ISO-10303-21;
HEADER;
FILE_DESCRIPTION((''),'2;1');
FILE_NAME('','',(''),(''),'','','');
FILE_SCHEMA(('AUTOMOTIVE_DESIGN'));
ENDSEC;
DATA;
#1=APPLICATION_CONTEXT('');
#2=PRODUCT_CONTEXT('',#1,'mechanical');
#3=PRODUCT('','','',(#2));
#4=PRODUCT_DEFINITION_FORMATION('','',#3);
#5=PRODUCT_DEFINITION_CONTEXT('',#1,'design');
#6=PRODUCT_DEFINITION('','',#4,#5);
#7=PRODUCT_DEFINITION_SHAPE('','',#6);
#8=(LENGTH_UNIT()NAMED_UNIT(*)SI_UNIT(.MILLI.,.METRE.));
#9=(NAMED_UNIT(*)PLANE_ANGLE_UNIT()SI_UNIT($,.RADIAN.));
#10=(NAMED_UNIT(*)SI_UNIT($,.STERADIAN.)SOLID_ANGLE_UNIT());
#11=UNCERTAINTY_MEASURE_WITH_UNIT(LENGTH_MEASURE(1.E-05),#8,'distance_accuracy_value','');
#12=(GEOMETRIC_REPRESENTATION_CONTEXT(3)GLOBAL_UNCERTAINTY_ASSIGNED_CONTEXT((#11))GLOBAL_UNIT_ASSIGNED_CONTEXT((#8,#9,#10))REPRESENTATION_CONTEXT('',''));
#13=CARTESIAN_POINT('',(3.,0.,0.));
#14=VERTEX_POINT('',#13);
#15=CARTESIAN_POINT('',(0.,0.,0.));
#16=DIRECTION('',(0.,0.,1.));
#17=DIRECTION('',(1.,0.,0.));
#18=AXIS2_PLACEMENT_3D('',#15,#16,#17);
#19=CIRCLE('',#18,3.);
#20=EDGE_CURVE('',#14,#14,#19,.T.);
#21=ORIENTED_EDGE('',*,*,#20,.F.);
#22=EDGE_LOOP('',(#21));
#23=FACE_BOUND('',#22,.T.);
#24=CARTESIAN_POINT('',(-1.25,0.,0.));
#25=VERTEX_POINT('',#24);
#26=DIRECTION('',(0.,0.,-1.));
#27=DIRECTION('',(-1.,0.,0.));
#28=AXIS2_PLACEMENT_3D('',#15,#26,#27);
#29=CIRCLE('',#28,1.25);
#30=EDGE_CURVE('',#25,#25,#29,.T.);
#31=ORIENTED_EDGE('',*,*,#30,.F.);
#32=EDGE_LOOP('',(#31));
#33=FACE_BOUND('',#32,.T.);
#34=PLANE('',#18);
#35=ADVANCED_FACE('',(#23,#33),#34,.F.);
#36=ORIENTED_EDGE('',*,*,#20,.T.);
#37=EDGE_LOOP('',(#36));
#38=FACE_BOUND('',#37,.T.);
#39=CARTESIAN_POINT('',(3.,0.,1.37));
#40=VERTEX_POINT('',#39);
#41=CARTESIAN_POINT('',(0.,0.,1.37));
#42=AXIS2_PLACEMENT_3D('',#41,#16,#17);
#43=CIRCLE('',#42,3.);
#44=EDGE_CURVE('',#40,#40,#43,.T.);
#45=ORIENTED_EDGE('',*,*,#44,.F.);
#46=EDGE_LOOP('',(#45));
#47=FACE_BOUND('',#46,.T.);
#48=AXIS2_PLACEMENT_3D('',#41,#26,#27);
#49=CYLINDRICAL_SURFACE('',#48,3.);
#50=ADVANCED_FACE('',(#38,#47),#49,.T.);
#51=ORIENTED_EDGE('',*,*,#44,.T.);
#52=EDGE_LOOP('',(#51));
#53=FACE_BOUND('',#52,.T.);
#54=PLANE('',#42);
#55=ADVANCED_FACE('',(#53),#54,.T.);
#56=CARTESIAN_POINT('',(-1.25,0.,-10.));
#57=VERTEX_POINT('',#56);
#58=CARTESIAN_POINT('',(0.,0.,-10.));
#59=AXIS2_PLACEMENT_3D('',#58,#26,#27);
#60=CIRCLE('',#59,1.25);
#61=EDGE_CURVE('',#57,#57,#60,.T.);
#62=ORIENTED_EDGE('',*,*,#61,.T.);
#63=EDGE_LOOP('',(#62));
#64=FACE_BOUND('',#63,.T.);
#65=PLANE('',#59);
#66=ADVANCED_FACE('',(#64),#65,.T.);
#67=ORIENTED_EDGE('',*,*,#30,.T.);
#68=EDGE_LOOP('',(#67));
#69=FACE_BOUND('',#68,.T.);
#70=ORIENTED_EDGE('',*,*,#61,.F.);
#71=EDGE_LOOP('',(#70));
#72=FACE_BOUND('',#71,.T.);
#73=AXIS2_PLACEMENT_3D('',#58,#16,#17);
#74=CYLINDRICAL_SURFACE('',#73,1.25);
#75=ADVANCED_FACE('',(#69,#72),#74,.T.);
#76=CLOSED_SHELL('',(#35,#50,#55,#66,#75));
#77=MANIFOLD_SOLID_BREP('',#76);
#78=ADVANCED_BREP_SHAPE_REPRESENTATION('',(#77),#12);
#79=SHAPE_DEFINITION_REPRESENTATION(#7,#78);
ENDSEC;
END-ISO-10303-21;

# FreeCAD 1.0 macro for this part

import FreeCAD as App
import Part
import Sketcher

V = App.Vector
Q = App.Units.Quantity

doc = App.newDocument("Part")
body = doc.addObject("PartDesign::Body", "Body")

sketch1 = doc.addObject("Sketcher::SketchObject", "Sketch")
body.addObject(sketch1)
sketch1.AttachmentSupport = (doc.XY_Plane, [""])
sketch1.MapMode = "FlatFace"
sketch1.addGeometry(Part.Circle(V(0, 0, 0), V(0, 0, 1), 3), False)
sketch1.addConstraint(Sketcher.Constraint("Coincident", 0, 3, -1, 1))
sketch1.addConstraint(Sketcher.Constraint("Diameter", 0, Q("6 mm")))
pad1 = doc.addObject("PartDesign::Pad", "Pad")
body.addObject(pad1)
pad1.Profile = sketch1
pad1.Length = 1.37

sketch2 = doc.addObject("Sketcher::SketchObject", "Sketch001")
body.addObject(sketch2)
sketch2.AttachmentSupport = (doc.XY_Plane, [""])
sketch2.MapMode = "FlatFace"
sketch2.addGeometry(Part.Circle(V(0, 0, 0), V(0, 0, 1), 1.2), False)
sketch2.addConstraint(Sketcher.Constraint("Coincident", 0, 3, -1, 1))
sketch2.addConstraint(Sketcher.Constraint("Diameter", 0, Q("2.5 mm")))
pad2 = doc.addObject("PartDesign::Pad", "Pad001")
body.addObject(pad2)
pad2.Profile = sketch2
pad2.Length = 10
pad2.Reversed = True

doc.recompute()
